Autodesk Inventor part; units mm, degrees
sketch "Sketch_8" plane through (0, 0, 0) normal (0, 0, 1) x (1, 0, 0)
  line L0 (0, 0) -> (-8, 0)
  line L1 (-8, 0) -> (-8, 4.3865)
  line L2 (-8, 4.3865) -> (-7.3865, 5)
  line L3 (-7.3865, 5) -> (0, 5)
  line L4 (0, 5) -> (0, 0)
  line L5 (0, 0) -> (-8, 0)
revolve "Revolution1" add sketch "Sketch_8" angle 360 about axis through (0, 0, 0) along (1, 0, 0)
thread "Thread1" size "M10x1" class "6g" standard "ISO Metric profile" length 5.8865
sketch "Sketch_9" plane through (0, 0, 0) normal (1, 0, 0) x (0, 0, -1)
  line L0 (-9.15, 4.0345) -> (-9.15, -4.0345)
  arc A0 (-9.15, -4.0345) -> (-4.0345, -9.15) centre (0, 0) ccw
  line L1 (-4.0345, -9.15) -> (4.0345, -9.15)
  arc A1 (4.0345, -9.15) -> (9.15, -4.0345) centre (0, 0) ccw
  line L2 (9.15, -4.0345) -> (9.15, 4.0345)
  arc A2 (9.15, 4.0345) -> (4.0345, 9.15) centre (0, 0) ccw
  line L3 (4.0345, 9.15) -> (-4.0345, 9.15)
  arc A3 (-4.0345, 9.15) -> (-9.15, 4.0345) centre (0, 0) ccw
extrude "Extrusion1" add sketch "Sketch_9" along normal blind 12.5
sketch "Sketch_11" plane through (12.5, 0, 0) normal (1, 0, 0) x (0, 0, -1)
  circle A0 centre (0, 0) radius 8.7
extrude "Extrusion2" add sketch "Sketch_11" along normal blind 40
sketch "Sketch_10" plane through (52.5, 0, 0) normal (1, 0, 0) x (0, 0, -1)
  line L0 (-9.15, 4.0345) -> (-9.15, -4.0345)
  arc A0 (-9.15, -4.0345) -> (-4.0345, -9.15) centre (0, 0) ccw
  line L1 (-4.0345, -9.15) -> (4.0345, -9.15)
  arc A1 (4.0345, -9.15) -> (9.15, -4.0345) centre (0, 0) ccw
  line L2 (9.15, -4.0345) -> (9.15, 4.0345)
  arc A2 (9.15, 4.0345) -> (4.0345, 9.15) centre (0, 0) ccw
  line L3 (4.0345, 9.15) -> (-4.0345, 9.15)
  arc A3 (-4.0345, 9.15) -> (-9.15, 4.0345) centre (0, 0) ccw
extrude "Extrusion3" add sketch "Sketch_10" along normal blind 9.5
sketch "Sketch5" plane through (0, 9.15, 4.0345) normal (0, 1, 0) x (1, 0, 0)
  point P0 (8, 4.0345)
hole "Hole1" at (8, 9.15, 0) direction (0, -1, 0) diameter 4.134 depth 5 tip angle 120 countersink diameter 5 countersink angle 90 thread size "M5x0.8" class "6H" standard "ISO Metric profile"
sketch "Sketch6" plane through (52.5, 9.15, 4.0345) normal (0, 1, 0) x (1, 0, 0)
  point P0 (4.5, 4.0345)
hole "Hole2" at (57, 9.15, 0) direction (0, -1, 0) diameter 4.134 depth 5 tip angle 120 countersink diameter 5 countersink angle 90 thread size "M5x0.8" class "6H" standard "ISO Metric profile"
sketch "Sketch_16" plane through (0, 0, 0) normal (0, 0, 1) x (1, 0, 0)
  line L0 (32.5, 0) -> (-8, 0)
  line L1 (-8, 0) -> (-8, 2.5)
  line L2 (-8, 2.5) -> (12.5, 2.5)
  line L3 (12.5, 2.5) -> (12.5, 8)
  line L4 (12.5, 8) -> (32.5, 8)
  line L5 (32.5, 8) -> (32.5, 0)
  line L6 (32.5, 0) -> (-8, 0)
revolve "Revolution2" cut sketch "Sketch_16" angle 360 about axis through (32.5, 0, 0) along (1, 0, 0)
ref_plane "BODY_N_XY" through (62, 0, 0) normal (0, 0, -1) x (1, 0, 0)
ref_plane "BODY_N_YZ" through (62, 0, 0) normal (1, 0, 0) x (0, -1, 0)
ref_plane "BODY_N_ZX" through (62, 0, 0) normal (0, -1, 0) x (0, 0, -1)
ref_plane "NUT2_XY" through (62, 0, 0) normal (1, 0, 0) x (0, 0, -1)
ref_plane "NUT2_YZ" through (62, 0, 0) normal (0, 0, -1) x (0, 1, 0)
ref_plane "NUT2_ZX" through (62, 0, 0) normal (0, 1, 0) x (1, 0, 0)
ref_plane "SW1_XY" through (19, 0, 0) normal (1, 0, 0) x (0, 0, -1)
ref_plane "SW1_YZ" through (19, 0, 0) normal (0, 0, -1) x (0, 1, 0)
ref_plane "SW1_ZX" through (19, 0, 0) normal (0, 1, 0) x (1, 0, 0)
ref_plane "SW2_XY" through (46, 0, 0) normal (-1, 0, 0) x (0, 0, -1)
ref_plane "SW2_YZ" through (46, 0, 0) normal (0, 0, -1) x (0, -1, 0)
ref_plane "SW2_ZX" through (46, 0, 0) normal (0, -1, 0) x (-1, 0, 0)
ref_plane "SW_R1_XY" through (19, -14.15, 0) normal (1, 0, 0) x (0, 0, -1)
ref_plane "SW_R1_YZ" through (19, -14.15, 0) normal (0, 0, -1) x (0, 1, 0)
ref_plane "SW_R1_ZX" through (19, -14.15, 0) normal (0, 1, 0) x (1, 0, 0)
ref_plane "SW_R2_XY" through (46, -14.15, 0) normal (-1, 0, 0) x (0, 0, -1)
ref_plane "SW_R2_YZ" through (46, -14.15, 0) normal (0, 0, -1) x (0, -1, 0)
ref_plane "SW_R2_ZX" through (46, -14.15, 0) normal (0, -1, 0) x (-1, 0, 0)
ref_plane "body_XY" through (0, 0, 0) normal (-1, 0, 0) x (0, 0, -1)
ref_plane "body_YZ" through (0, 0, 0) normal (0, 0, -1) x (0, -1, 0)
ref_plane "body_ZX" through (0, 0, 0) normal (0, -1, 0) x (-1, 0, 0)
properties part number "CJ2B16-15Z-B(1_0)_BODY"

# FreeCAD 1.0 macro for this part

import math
import FreeCAD as App
import Part
import Sketcher

V = App.Vector
Q = App.Units.Quantity


def add_polygon(sketch, points):
    """Adds a closed chain of lines whose ends are joined by coincident constraints."""
    first, n = sketch.GeometryCount, len(points)
    for a, b in zip(points, points[1:] + points[:1]):
        sketch.addGeometry(Part.LineSegment(App.Vector(*a, 0), App.Vector(*b, 0)), False)
    for i in range(n):
        sketch.addConstraint(Sketcher.Constraint("Coincident", first + i, 2, first + (i + 1) % n, 1))

doc = App.newDocument("Part")
params = doc.addObject("Spreadsheet::Sheet", "Params")
for row, (alias, value) in enumerate([
    ("sketch1_width", "8 mm"),
    ("sketch1_height", "5 mm"),
    ("revolution_angle", "360 deg"),
    ("sketch2_radius", "10 mm"),
    ("pad1_length", "12.5 mm"),
    ("sketch3_diameter", "17.4 mm"),
    ("pad2_length", "40 mm"),
    ("sketch4_radius", "10 mm"),
    ("pad3_length", "9.5 mm"),
    ("hole_diameter", "4.134 mm"),
    ("hole_depth", "5 mm"),
    ("hole_csink_diameter", "5 mm"),
    ("hole2_diameter", "4.134 mm"),
    ("hole2_depth", "5 mm"),
    ("hole2_csink_diameter", "5 mm"),
    ("sketch7_width", "20 mm"),
    ("sketch7_height", "8 mm"),
    ("sketch7_width2", "40.5 mm"),
    ("sketch7_height2", "5.5 mm"),
    ("groove_angle", "360 deg"),
], start=1):
    params.set(f"A{row}", alias)
    params.set(f"B{row}", "=" + value)
    params.setAlias(f"B{row}", alias)

body = doc.addObject("PartDesign::Body", "Body")

# Sketch on XY plane
sketch1 = body.newObject("Sketcher::SketchObject", "Sketch")
sketch1.AttachmentSupport = (doc.getObject("XY_Plane"), [""])
sketch1.MapMode = "FlatFace"
add_polygon(sketch1, [(-8, 0), (0, 0), (0, 5), (-7.3865, 5), (-8, 4.3865)])  # lines 0-4
sketch1.addConstraint([
    Sketcher.Constraint("Horizontal", 0),
    Sketcher.Constraint("Vertical", 1),
    Sketcher.Constraint("Horizontal", 2),
    Sketcher.Constraint("Vertical", 4),
    Sketcher.Constraint("Coincident", 0, 2, -1, 1),
    Sketcher.Constraint("DistanceX", 0, 1, 0, 2, 8.0),
    Sketcher.Constraint("DistanceY", 1, 1, 1, 2, 5.0),
    Sketcher.Constraint("Angle", 3, Q("-135 deg")),
    Sketcher.Constraint("DistanceX", 2, 2, 2, 1, 7.3865),
])
sketch1.setExpression("Constraints[10]", "Params.sketch1_width")
sketch1.setExpression("Constraints[11]", "Params.sketch1_height")
revolution = body.newObject("PartDesign::Revolution", "Revolution")
revolution.Profile = sketch1
revolution.ReferenceAxis = (sketch1, ["H_Axis"])
revolution.setExpression("Angle", "Params.revolution_angle")

# Sketch on YZ plane
sketch2 = body.newObject("Sketcher::SketchObject", "Sketch001")
sketch2.AttachmentSupport = (doc.getObject("YZ_Plane"), [""])
sketch2.MapMode = "FlatFace"
sketch2.addGeometry([
    Part.ArcOfCircle(Part.Circle(V(0, 0, 0), V(0, 0, 1), 9.999985), math.radians(23.794072), math.radians(66.205928)),  # 0
    Part.LineSegment(V(4.0345, 9.15, 0), V(-4.0345, 9.15, 0)),  # 1
    Part.ArcOfCircle(Part.Circle(V(0, 0, 0), V(0, 0, 1), 9.999985), math.radians(113.794072), math.radians(156.205928)),  # 2
    Part.LineSegment(V(-9.15, 4.0345, 0), V(-9.15, -4.0345, 0)),  # 3
    Part.ArcOfCircle(Part.Circle(V(0, 0, 0), V(0, 0, 1), 9.999985), math.radians(-156.205928), math.radians(-113.794072)),  # 4
    Part.LineSegment(V(-4.0345, -9.15, 0), V(4.0345, -9.15, 0)),  # 5
    Part.ArcOfCircle(Part.Circle(V(0, 0, 0), V(0, 0, 1), 9.999985), math.radians(-66.205928), math.radians(-23.794072)),  # 6
    Part.LineSegment(V(9.15, -4.0345, 0), V(9.15, 4.0345, 0)),  # 7
], False)
sketch2.addConstraint([
    Sketcher.Constraint("Coincident", 0, 2, 1, 1),
    Sketcher.Constraint("Coincident", 1, 2, 2, 1),
    Sketcher.Constraint("Coincident", 2, 2, 3, 1),
    Sketcher.Constraint("Coincident", 3, 2, 4, 1),
    Sketcher.Constraint("Coincident", 4, 2, 5, 1),
    Sketcher.Constraint("Coincident", 5, 2, 6, 1),
    Sketcher.Constraint("Coincident", 6, 2, 7, 1),
    Sketcher.Constraint("Coincident", 7, 2, 0, 1),
    Sketcher.Constraint("Horizontal", 1),
    Sketcher.Constraint("Vertical", 3),
    Sketcher.Constraint("Horizontal", 5),
    Sketcher.Constraint("Vertical", 7),
    Sketcher.Constraint("Coincident", 0, 3, -1, 1),
    Sketcher.Constraint("Coincident", 2, 3, -1, 1),
    Sketcher.Constraint("Coincident", 4, 3, -1, 1),
    Sketcher.Constraint("Coincident", 6, 3, -1, 1),
    Sketcher.Constraint("Equal", 0, 2),
    Sketcher.Constraint("Equal", 2, 4),
    Sketcher.Constraint("Equal", 4, 6),
    Sketcher.Constraint("Horizontal", 3, 2, 6, 2),
    Sketcher.Constraint("Vertical", 1, 2, 4, 2),
    Sketcher.Constraint("Equal", 5, 3),
    Sketcher.Constraint("Radius", 0, 10.0),
    Sketcher.Constraint("DistanceX", 1, 2, 1, 1, 8.069),
])
sketch2.setExpression("Constraints[22]", "Params.sketch2_radius")
pad1 = body.newObject("PartDesign::Pad", "Pad")
pad1.Profile = sketch2
pad1.setExpression("Length", "Params.pad1_length")

# Sketch on YZ plane
sketch3 = body.newObject("Sketcher::SketchObject", "Sketch002")
sketch3.AttachmentSupport = (doc.getObject("YZ_Plane"), [""])
sketch3.MapMode = "FlatFace"
sketch3.AttachmentOffset = App.Placement(V(0, 0, 12.5), App.Rotation())
sketch3.addGeometry(Part.Circle(V(0, 0, 0), V(0, 0, 1), 8.7), False)
sketch3.addConstraint([
    Sketcher.Constraint("Coincident", 0, 3, -1, 1),
    Sketcher.Constraint("Diameter", 0, 17.4),
])
sketch3.setExpression("Constraints[1]", "Params.sketch3_diameter")
pad2 = body.newObject("PartDesign::Pad", "Pad001")
pad2.Profile = sketch3
pad2.setExpression("Length", "Params.pad2_length")

# Sketch on YZ plane
sketch4 = body.newObject("Sketcher::SketchObject", "Sketch003")
sketch4.AttachmentSupport = (doc.getObject("YZ_Plane"), [""])
sketch4.MapMode = "FlatFace"
sketch4.AttachmentOffset = App.Placement(V(0, 0, 52.5), App.Rotation())
sketch4.addGeometry([
    Part.ArcOfCircle(Part.Circle(V(0, 0, 0), V(0, 0, 1), 9.999985), math.radians(23.794072), math.radians(66.205928)),  # 0
    Part.LineSegment(V(4.0345, 9.15, 0), V(-4.0345, 9.15, 0)),  # 1
    Part.ArcOfCircle(Part.Circle(V(0, 0, 0), V(0, 0, 1), 9.999985), math.radians(113.794072), math.radians(156.205928)),  # 2
    Part.LineSegment(V(-9.15, 4.0345, 0), V(-9.15, -4.0345, 0)),  # 3
    Part.ArcOfCircle(Part.Circle(V(0, 0, 0), V(0, 0, 1), 9.999985), math.radians(-156.205928), math.radians(-113.794072)),  # 4
    Part.LineSegment(V(-4.0345, -9.15, 0), V(4.0345, -9.15, 0)),  # 5
    Part.ArcOfCircle(Part.Circle(V(0, 0, 0), V(0, 0, 1), 9.999985), math.radians(-66.205928), math.radians(-23.794072)),  # 6
    Part.LineSegment(V(9.15, -4.0345, 0), V(9.15, 4.0345, 0)),  # 7
], False)
sketch4.addConstraint([
    Sketcher.Constraint("Coincident", 0, 2, 1, 1),
    Sketcher.Constraint("Coincident", 1, 2, 2, 1),
    Sketcher.Constraint("Coincident", 2, 2, 3, 1),
    Sketcher.Constraint("Coincident", 3, 2, 4, 1),
    Sketcher.Constraint("Coincident", 4, 2, 5, 1),
    Sketcher.Constraint("Coincident", 5, 2, 6, 1),
    Sketcher.Constraint("Coincident", 6, 2, 7, 1),
    Sketcher.Constraint("Coincident", 7, 2, 0, 1),
    Sketcher.Constraint("Horizontal", 1),
    Sketcher.Constraint("Vertical", 3),
    Sketcher.Constraint("Horizontal", 5),
    Sketcher.Constraint("Vertical", 7),
    Sketcher.Constraint("Coincident", 0, 3, -1, 1),
    Sketcher.Constraint("Coincident", 2, 3, -1, 1),
    Sketcher.Constraint("Coincident", 4, 3, -1, 1),
    Sketcher.Constraint("Coincident", 6, 3, -1, 1),
    Sketcher.Constraint("Equal", 0, 2),
    Sketcher.Constraint("Equal", 2, 4),
    Sketcher.Constraint("Equal", 4, 6),
    Sketcher.Constraint("Horizontal", 3, 2, 6, 2),
    Sketcher.Constraint("Vertical", 1, 2, 4, 2),
    Sketcher.Constraint("Equal", 5, 3),
    Sketcher.Constraint("Radius", 0, 10.0),
    Sketcher.Constraint("DistanceX", 1, 2, 1, 1, 8.069),
])
sketch4.setExpression("Constraints[22]", "Params.sketch4_radius")
pad3 = body.newObject("PartDesign::Pad", "Pad002")
pad3.Profile = sketch4
pad3.setExpression("Length", "Params.pad3_length")

# Sketch on XZ plane
sketch5 = body.newObject("Sketcher::SketchObject", "Sketch004")
sketch5.AttachmentSupport = (doc.getObject("XZ_Plane"), [""])
sketch5.MapMode = "FlatFace"
sketch5.AttachmentOffset = App.Placement(V(0, 0, -9.15), App.Rotation())
sketch5.addGeometry(Part.Circle(V(8, 0, 0), V(0, 0, 1), 2.067), False)
sketch5.addConstraint([
    Sketcher.Constraint("PointOnObject", 0, 3, -1),
    Sketcher.Constraint("Diameter", 0, 4.134),
    Sketcher.Constraint("DistanceX", -1, 1, 0, 3, 8.0),
])
doc.recompute()
hole = body.newObject("PartDesign::Hole", "Hole")
hole.Profile = sketch5
hole.ThreadType = "None"
hole.setExpression("Diameter", "Params.hole_diameter")
hole.DepthType = "Dimension"
hole.setExpression("Depth", "Params.hole_depth")
hole.DrillPoint = "Angled"
hole.DrillPointAngle = 120
hole.HoleCutType = "Countersink"
hole.setExpression("HoleCutDiameter", "Params.hole_csink_diameter")
hole.HoleCutCountersinkAngle = 90
hole.Reversed = True

# Sketch on XZ plane
sketch6 = body.newObject("Sketcher::SketchObject", "Sketch005")
sketch6.AttachmentSupport = (doc.getObject("XZ_Plane"), [""])
sketch6.MapMode = "FlatFace"
sketch6.AttachmentOffset = App.Placement(V(0, 0, -9.15), App.Rotation())
sketch6.addGeometry(Part.Circle(V(57, 0, 0), V(0, 0, 1), 2.067), False)
sketch6.addConstraint([
    Sketcher.Constraint("PointOnObject", 0, 3, -1),
    Sketcher.Constraint("Diameter", 0, 4.134),
    Sketcher.Constraint("DistanceX", -1, 1, 0, 3, 57.0),
])
doc.recompute()
hole2 = body.newObject("PartDesign::Hole", "Hole001")
hole2.Profile = sketch6
hole2.ThreadType = "None"
hole2.setExpression("Diameter", "Params.hole2_diameter")
hole2.DepthType = "Dimension"
hole2.setExpression("Depth", "Params.hole2_depth")
hole2.DrillPoint = "Angled"
hole2.DrillPointAngle = 120
hole2.HoleCutType = "Countersink"
hole2.setExpression("HoleCutDiameter", "Params.hole2_csink_diameter")
hole2.HoleCutCountersinkAngle = 90
hole2.Reversed = True

# Sketch on XY plane
sketch7 = body.newObject("Sketcher::SketchObject", "Sketch006")
sketch7.AttachmentSupport = (doc.getObject("XY_Plane"), [""])
sketch7.MapMode = "FlatFace"
add_polygon(sketch7, [(-8, 0), (32.5, 0), (32.5, 8), (12.5, 8), (12.5, 2.5), (-8, 2.5)])  # lines 0-5
sketch7.addConstraint([
    Sketcher.Constraint("Horizontal", 0),
    Sketcher.Constraint("Vertical", 1),
    Sketcher.Constraint("Horizontal", 2),
    Sketcher.Constraint("Vertical", 3),
    Sketcher.Constraint("Horizontal", 4),
    Sketcher.Constraint("Vertical", 5),
    Sketcher.Constraint("PointOnObject", 0, 2, -1),
    Sketcher.Constraint("DistanceX", 2, 2, 2, 1, 20.0),
    Sketcher.Constraint("DistanceY", 1, 1, 1, 2, 8.0),
    Sketcher.Constraint("DistanceX", 0, 1, 0, 2, 40.5),
    Sketcher.Constraint("DistanceY", 3, 2, 3, 1, 5.5),
    Sketcher.Constraint("DistanceX", 4, 2, -1, 1, 8.0),
])
sketch7.setExpression("Constraints[13]", "Params.sketch7_width")
sketch7.setExpression("Constraints[14]", "Params.sketch7_height")
sketch7.setExpression("Constraints[15]", "Params.sketch7_width2")
sketch7.setExpression("Constraints[16]", "Params.sketch7_height2")
groove = body.newObject("PartDesign::Groove", "Groove")
groove.Profile = sketch7
groove.ReferenceAxis = (sketch7, ["H_Axis"])
groove.setExpression("Angle", "Params.groove_angle")

doc.recompute()
